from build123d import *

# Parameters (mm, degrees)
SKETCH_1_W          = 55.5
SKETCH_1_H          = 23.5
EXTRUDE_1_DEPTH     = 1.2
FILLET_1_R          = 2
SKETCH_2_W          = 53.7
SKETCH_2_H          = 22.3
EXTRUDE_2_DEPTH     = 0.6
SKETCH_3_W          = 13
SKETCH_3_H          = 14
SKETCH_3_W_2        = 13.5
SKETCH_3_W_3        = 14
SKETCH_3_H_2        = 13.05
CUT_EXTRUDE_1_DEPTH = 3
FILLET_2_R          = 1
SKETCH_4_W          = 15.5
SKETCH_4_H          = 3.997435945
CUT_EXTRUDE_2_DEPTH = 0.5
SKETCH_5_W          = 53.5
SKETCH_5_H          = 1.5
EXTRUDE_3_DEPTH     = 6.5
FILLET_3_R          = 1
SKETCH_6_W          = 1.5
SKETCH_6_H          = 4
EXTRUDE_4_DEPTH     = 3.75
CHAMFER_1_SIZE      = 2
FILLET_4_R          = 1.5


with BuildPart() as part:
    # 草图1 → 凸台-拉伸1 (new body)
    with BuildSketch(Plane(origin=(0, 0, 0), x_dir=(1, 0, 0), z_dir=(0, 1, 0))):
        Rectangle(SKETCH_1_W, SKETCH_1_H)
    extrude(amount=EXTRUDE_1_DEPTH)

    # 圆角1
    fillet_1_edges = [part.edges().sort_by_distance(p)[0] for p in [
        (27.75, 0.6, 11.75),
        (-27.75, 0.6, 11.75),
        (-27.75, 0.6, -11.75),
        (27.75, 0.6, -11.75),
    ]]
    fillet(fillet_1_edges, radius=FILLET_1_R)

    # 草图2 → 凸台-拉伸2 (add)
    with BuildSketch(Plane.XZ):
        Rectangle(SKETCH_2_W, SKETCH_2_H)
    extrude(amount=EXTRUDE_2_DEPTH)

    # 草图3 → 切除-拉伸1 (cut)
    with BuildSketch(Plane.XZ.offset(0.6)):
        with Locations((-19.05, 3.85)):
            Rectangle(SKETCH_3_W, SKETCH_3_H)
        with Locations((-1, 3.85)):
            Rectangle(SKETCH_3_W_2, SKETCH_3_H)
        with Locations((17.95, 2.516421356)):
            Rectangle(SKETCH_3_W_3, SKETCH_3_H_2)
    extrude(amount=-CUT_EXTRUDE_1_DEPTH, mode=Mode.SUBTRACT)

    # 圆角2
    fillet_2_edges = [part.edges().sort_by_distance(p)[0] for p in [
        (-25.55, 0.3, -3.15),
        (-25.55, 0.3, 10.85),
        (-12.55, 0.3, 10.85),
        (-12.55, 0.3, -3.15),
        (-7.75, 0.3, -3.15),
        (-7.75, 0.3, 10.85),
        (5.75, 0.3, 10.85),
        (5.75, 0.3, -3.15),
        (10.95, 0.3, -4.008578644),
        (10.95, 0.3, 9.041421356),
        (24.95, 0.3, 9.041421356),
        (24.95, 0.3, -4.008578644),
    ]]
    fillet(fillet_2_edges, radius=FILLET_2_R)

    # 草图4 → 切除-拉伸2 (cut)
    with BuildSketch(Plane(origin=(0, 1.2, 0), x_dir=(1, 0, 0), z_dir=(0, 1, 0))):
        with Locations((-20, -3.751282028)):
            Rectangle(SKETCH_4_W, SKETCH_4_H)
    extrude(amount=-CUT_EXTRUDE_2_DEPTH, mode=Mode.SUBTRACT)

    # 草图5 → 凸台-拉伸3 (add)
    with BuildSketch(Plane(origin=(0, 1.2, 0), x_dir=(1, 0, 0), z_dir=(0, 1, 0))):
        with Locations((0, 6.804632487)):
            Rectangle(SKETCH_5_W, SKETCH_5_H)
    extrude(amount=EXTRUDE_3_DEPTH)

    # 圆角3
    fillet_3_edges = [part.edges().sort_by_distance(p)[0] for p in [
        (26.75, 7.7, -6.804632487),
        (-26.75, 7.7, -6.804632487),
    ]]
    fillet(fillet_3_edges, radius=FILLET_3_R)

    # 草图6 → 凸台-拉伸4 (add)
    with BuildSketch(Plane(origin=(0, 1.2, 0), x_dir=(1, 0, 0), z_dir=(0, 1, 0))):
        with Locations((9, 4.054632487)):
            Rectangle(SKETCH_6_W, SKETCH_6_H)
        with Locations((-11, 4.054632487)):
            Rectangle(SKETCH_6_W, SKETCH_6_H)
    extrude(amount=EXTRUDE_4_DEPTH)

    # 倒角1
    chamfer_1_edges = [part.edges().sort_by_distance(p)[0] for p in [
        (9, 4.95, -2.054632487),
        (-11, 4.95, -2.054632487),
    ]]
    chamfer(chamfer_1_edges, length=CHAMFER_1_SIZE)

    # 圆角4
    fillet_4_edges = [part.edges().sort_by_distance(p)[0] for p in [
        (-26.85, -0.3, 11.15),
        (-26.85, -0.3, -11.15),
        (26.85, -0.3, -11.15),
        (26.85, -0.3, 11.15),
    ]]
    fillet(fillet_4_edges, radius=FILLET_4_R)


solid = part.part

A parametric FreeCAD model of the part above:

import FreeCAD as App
import Part
import Sketcher
from FreeCAD import Vector
Q = App.Units.Quantity


def edges_at(feature, points):
    """Names of the edges that pass closest to the given points."""
    edges = feature.Shape.Edges
    near = lambda p: min(range(len(edges)), key=lambda i: edges[i].distToShape(Part.Vertex(*p))[0])
    return sorted({f"Edge{near(p) + 1}" for p in points})

doc = App.newDocument("Part")
params = doc.addObject("Spreadsheet::Sheet", "Params")
for row, (alias, value) in enumerate([
    ("sketch1_width", "55.5 mm"),
    ("sketch1_height", "23.5 mm"),
    ("pad1_length", "1.2 mm"),
    ("fillet_radius", "2 mm"),
    ("sketch2_width", "53.7 mm"),
    ("sketch2_height", "22.3 mm"),
    ("pad2_length", "0.6 mm"),
    ("sketch3_width", "13 mm"),
    ("sketch3_width2", "14 mm"),
    ("sketch3_width3", "13.5 mm"),
    ("sketch3_height", "13.05 mm"),
    ("pocket1_length", "3 mm"),
    ("fillet2_radius", "1 mm"),
    ("sketch4_width", "15.5 mm"),
    ("pocket2_length", "0.5 mm"),
    ("sketch5_width", "53.5 mm"),
    ("sketch5_height", "1.5 mm"),
    ("pad3_length", "6.5 mm"),
    ("fillet3_radius", "1 mm"),
    ("sketch6_height", "4 mm"),
    ("sketch6_width", "1.5 mm"),
    ("pad4_length", "3.75 mm"),
    ("chamfer_size", "2 mm"),
    ("fillet4_radius", "1.5 mm"),
], start=1):
    params.set(f"A{row}", alias)
    params.set(f"B{row}", "=" + value)
    params.setAlias(f"B{row}", alias)

body = doc.addObject("PartDesign::Body", "Body")

sketch1 = body.newObject("Sketcher::SketchObject", "Sketch")
sketch1.AttachmentSupport = (doc.getObject("XZ_Plane"), [""])
sketch1.MapMode = "FlatFace"
sketch1.addGeometry(Part.LineSegment(Vector(-28, -12, 0), Vector(-28, 12, 0)), False)
sketch1.addGeometry(Part.LineSegment(Vector(-28, 12, 0), Vector(28, 12, 0)), False)
sketch1.addGeometry(Part.LineSegment(Vector(28, 12, 0), Vector(28, -12, 0)), False)
sketch1.addGeometry(Part.LineSegment(Vector(28, -12, 0), Vector(-28, -12, 0)), False)
sketch1.addConstraint(Sketcher.Constraint("Coincident", 0, 2, 1, 1))
sketch1.addConstraint(Sketcher.Constraint("Coincident", 1, 2, 2, 1))
sketch1.addConstraint(Sketcher.Constraint("Coincident", 2, 2, 3, 1))
sketch1.addConstraint(Sketcher.Constraint("Coincident", 3, 2, 0, 1))
sketch1.addConstraint(Sketcher.Constraint("Vertical", 0))
sketch1.addConstraint(Sketcher.Constraint("Horizontal", 1))
sketch1.addConstraint(Sketcher.Constraint("Vertical", 2))
sketch1.addConstraint(Sketcher.Constraint("Horizontal", 3))
sketch1.addConstraint(Sketcher.Constraint("Symmetric", 0, 2, 2, 2, -1, 1))
sketch1.addConstraint(Sketcher.Constraint("DistanceX", 1, 1, 1, 2, Q("55.5 mm")))
sketch1.addConstraint(Sketcher.Constraint("DistanceY", 0, 1, 0, 2, Q("23.5 mm")))
sketch1.setExpression("Constraints[9]", "Params.sketch1_width")
sketch1.setExpression("Constraints[10]", "Params.sketch1_height")
pad1 = body.newObject("PartDesign::Pad", "Pad")
pad1.Profile = sketch1
pad1.setExpression("Length", "Params.pad1_length")
pad1.Reversed = True
doc.recompute()

fillet = body.newObject("PartDesign::Fillet", "Fillet")
fillet.Base = (pad1, edges_at(pad1, [
    (27.75, 0.6, 11.75),
    (-27.75, 0.6, 11.75),
    (-27.75, 0.6, -11.75),
    (27.75, 0.6, -11.75),
]))
fillet.setExpression("Radius", "Params.fillet_radius")

sketch2 = body.newObject("Sketcher::SketchObject", "Sketch001")
sketch2.AttachmentSupport = (doc.getObject("XZ_Plane"), [""])
sketch2.MapMode = "FlatFace"
sketch2.addGeometry(Part.LineSegment(Vector(-27, 11, 0), Vector(-27, -11, 0)), False)
sketch2.addGeometry(Part.LineSegment(Vector(-27, -11, 0), Vector(27, -11, 0)), False)
sketch2.addGeometry(Part.LineSegment(Vector(27, -11, 0), Vector(27, 11, 0)), False)
sketch2.addGeometry(Part.LineSegment(Vector(27, 11, 0), Vector(-27, 11, 0)), False)
sketch2.addConstraint(Sketcher.Constraint("Coincident", 0, 2, 1, 1))
sketch2.addConstraint(Sketcher.Constraint("Coincident", 1, 2, 2, 1))
sketch2.addConstraint(Sketcher.Constraint("Coincident", 2, 2, 3, 1))
sketch2.addConstraint(Sketcher.Constraint("Coincident", 3, 2, 0, 1))
sketch2.addConstraint(Sketcher.Constraint("Vertical", 0))
sketch2.addConstraint(Sketcher.Constraint("Horizontal", 1))
sketch2.addConstraint(Sketcher.Constraint("Vertical", 2))
sketch2.addConstraint(Sketcher.Constraint("Horizontal", 3))
sketch2.addConstraint(Sketcher.Constraint("Symmetric", 0, 2, 2, 2, -1, 1))
sketch2.addConstraint(Sketcher.Constraint("DistanceX", 1, 1, 1, 2, Q("53.7 mm")))
sketch2.addConstraint(Sketcher.Constraint("DistanceY", 0, 2, 0, 1, Q("22.3 mm")))
sketch2.setExpression("Constraints[9]", "Params.sketch2_width")
sketch2.setExpression("Constraints[10]", "Params.sketch2_height")
pad2 = body.newObject("PartDesign::Pad", "Pad001")
pad2.Profile = sketch2
pad2.setExpression("Length", "Params.pad2_length")

sketch3 = body.newObject("Sketcher::SketchObject", "Sketch002")
sketch3.AttachmentSupport = (doc.getObject("XZ_Plane"), [""])
sketch3.MapMode = "FlatFace"
sketch3.AttachmentOffset = App.Placement(Vector(0, 0, 0.6), App.Rotation())
sketch3.addGeometry(Part.LineSegment(Vector(-26, 11, 0), Vector(-26, -3, 0)), False)
sketch3.addGeometry(Part.LineSegment(Vector(-26, -3, 0), Vector(-13, -3, 0)), False)
sketch3.addGeometry(Part.LineSegment(Vector(-13, -3, 0), Vector(-13, 11, 0)), False)
sketch3.addGeometry(Part.LineSegment(Vector(-13, 11, 0), Vector(-26, 11, 0)), False)
sketch3.addGeometry(Part.LineSegment(Vector(-8, 11, 0), Vector(-8, -3, 0)), False)
sketch3.addGeometry(Part.LineSegment(Vector(-8, -3, 0), Vector(6, -3, 0)), False)
sketch3.addGeometry(Part.LineSegment(Vector(6, -3, 0), Vector(6, 11, 0)), False)
sketch3.addGeometry(Part.LineSegment(Vector(6, 11, 0), Vector(-8, 11, 0)), False)
sketch3.addGeometry(Part.LineSegment(Vector(11, 9, 0), Vector(11, -4, 0)), False)
sketch3.addGeometry(Part.LineSegment(Vector(11, -4, 0), Vector(25, -4, 0)), False)
sketch3.addGeometry(Part.LineSegment(Vector(25, -4, 0), Vector(25, 9, 0)), False)
sketch3.addGeometry(Part.LineSegment(Vector(25, 9, 0), Vector(11, 9, 0)), False)
sketch3.addConstraint(Sketcher.Constraint("Coincident", 0, 2, 1, 1))
sketch3.addConstraint(Sketcher.Constraint("Coincident", 1, 2, 2, 1))
sketch3.addConstraint(Sketcher.Constraint("Coincident", 2, 2, 3, 1))
sketch3.addConstraint(Sketcher.Constraint("Coincident", 3, 2, 0, 1))
sketch3.addConstraint(Sketcher.Constraint("Coincident", 4, 2, 5, 1))
sketch3.addConstraint(Sketcher.Constraint("Coincident", 5, 2, 6, 1))
sketch3.addConstraint(Sketcher.Constraint("Coincident", 6, 2, 7, 1))
sketch3.addConstraint(Sketcher.Constraint("Coincident", 7, 2, 4, 1))
sketch3.addConstraint(Sketcher.Constraint("Coincident", 8, 2, 9, 1))
sketch3.addConstraint(Sketcher.Constraint("Coincident", 9, 2, 10, 1))
sketch3.addConstraint(Sketcher.Constraint("Coincident", 10, 2, 11, 1))
sketch3.addConstraint(Sketcher.Constraint("Coincident", 11, 2, 8, 1))
sketch3.addConstraint(Sketcher.Constraint("Vertical", 0))
sketch3.addConstraint(Sketcher.Constraint("Horizontal", 1))
sketch3.addConstraint(Sketcher.Constraint("Vertical", 2))
sketch3.addConstraint(Sketcher.Constraint("Horizontal", 3))
sketch3.addConstraint(Sketcher.Constraint("Vertical", 4))
sketch3.addConstraint(Sketcher.Constraint("Horizontal", 5))
sketch3.addConstraint(Sketcher.Constraint("Vertical", 6))
sketch3.addConstraint(Sketcher.Constraint("Horizontal", 7))
sketch3.addConstraint(Sketcher.Constraint("Vertical", 8))
sketch3.addConstraint(Sketcher.Constraint("Horizontal", 9))
sketch3.addConstraint(Sketcher.Constraint("Vertical", 10))
sketch3.addConstraint(Sketcher.Constraint("Horizontal", 11))
sketch3.addConstraint(Sketcher.Constraint("Horizontal", 1, 2, 4, 2))
sketch3.addConstraint(Sketcher.Constraint("Horizontal", 3, 2, 6, 2))
sketch3.addConstraint(Sketcher.Constraint("Equal", 11, 0))
sketch3.addConstraint(Sketcher.Constraint("DistanceX", 1, 1, 1, 2, Q("13 mm")))
sketch3.addConstraint(Sketcher.Constraint("DistanceX", 9, 1, 9, 2, Q("14 mm")))
sketch3.addConstraint(Sketcher.Constraint("DistanceX", 5, 1, 5, 2, Q("13.5 mm")))
sketch3.addConstraint(Sketcher.Constraint("DistanceY", 8, 2, 8, 1, Q("13.05 mm")))
sketch3.addConstraint(Sketcher.Constraint("DistanceX", 1, 2, 4, 2, Q("4.8 mm")))
sketch3.addConstraint(Sketcher.Constraint("DistanceX", 5, 2, 8, 2, Q("5.2 mm")))
sketch3.addConstraint(Sketcher.Constraint("DistanceX", 0, 2, -1, 1, Q("25.55 mm")))
sketch3.addConstraint(Sketcher.Constraint("DistanceY", 0, 2, -1, 1, Q("3.15 mm")))
sketch3.addConstraint(Sketcher.Constraint("DistanceY", 8, 2, -1, 1, Q("4.008579 mm")))
sketch3.setExpression("Constraints[27]", "Params.sketch3_width")
sketch3.setExpression("Constraints[28]", "Params.sketch3_width2")
sketch3.setExpression("Constraints[29]", "Params.sketch3_width3")
sketch3.setExpression("Constraints[30]", "Params.sketch3_height")
pocket1 = body.newObject("PartDesign::Pocket", "Pocket")
pocket1.Profile = sketch3
pocket1.setExpression("Length", "Params.pocket1_length")
doc.recompute()

fillet2 = body.newObject("PartDesign::Fillet", "Fillet001")
fillet2.Base = (pocket1, edges_at(pocket1, [
    (-25.55, 0.3, -3.15),
    (-25.55, 0.3, 10.85),
    (-12.55, 0.3, 10.85),
    (-12.55, 0.3, -3.15),
    (-7.75, 0.3, -3.15),
    (-7.75, 0.3, 10.85),
    (5.75, 0.3, 10.85),
    (5.75, 0.3, -3.15),
    (10.95, 0.3, -4.009),
    (10.95, 0.3, 9.041),
    (24.95, 0.3, 9.041),
    (24.95, 0.3, -4.009),
]))
fillet2.setExpression("Radius", "Params.fillet2_radius")

sketch4 = body.newObject("Sketcher::SketchObject", "Sketch003")
sketch4.AttachmentSupport = (doc.getObject("XZ_Plane"), [""])
sketch4.MapMode = "FlatFace"
sketch4.AttachmentOffset = App.Placement(Vector(0, 0, -1.2), App.Rotation())
sketch4.addGeometry(Part.LineSegment(Vector(-27.8, 1.8, 0), Vector(-27.8, 5.8, 0)), False)
sketch4.addGeometry(Part.LineSegment(Vector(-27.8, 5.8, 0), Vector(-12.2, 5.8, 0)), False)
sketch4.addGeometry(Part.LineSegment(Vector(-12.2, 5.8, 0), Vector(-12.2, 1.8, 0)), False)
sketch4.addGeometry(Part.LineSegment(Vector(-12.2, 1.8, 0), Vector(-27.8, 1.8, 0)), False)
sketch4.addConstraint(Sketcher.Constraint("Coincident", 0, 2, 1, 1))
sketch4.addConstraint(Sketcher.Constraint("Coincident", 1, 2, 2, 1))
sketch4.addConstraint(Sketcher.Constraint("Coincident", 2, 2, 3, 1))
sketch4.addConstraint(Sketcher.Constraint("Coincident", 3, 2, 0, 1))
sketch4.addConstraint(Sketcher.Constraint("Vertical", 0))
sketch4.addConstraint(Sketcher.Constraint("Horizontal", 1))
sketch4.addConstraint(Sketcher.Constraint("Vertical", 2))
sketch4.addConstraint(Sketcher.Constraint("Horizontal", 3))
sketch4.addConstraint(Sketcher.Constraint("DistanceX", 1, 1, 1, 2, Q("15.5 mm")))
sketch4.addConstraint(Sketcher.Constraint("DistanceX", 0, 2, -1, 1, Q("27.75 mm")))
sketch4.addConstraint(Sketcher.Constraint("DistanceY", -1, 1, 0, 2, Q("5.75 mm")))
sketch4.addConstraint(Sketcher.Constraint("DistanceY", 0, 1, 0, 2, Q("3.997436 mm")))
sketch4.setExpression("Constraints[8]", "Params.sketch4_width")
pocket2 = body.newObject("PartDesign::Pocket", "Pocket001")
pocket2.Profile = sketch4
pocket2.setExpression("Length", "Params.pocket2_length")
pocket2.Reversed = True

sketch5 = body.newObject("Sketcher::SketchObject", "Sketch004")
sketch5.AttachmentSupport = (doc.getObject("XZ_Plane"), [""])
sketch5.MapMode = "FlatFace"
sketch5.AttachmentOffset = App.Placement(Vector(0, 0, -1.2), App.Rotation())
sketch5.addGeometry(Part.LineSegment(Vector(-26.8, -7.6, 0), Vector(-26.8, -6.1, 0)), False)
sketch5.addGeometry(Part.LineSegment(Vector(-26.8, -6.1, 0), Vector(26.8, -6.1, 0)), False)
sketch5.addGeometry(Part.LineSegment(Vector(26.8, -6.1, 0), Vector(26.8, -7.6, 0)), False)
sketch5.addGeometry(Part.LineSegment(Vector(26.8, -7.6, 0), Vector(-26.8, -7.6, 0)), False)
sketch5.addConstraint(Sketcher.Constraint("Coincident", 0, 2, 1, 1))
sketch5.addConstraint(Sketcher.Constraint("Coincident", 1, 2, 2, 1))
sketch5.addConstraint(Sketcher.Constraint("Coincident", 2, 2, 3, 1))
sketch5.addConstraint(Sketcher.Constraint("Coincident", 3, 2, 0, 1))
sketch5.addConstraint(Sketcher.Constraint("Vertical", 0))
sketch5.addConstraint(Sketcher.Constraint("Horizontal", 1))
sketch5.addConstraint(Sketcher.Constraint("Vertical", 2))
sketch5.addConstraint(Sketcher.Constraint("Horizontal", 3))
sketch5.addConstraint(Sketcher.Constraint("DistanceX", 1, 1, 1, 2, Q("53.5 mm")))
sketch5.addConstraint(Sketcher.Constraint("DistanceY", 0, 1, 0, 2, Q("1.5 mm")))
sketch5.addConstraint(Sketcher.Constraint("DistanceX", 0, 2, -1, 1, Q("26.75 mm")))
sketch5.addConstraint(Sketcher.Constraint("DistanceY", 0, 2, -1, 1, Q("6.054632 mm")))
sketch5.setExpression("Constraints[8]", "Params.sketch5_width")
sketch5.setExpression("Constraints[9]", "Params.sketch5_height")
pad3 = body.newObject("PartDesign::Pad", "Pad002")
pad3.Profile = sketch5
pad3.setExpression("Length", "Params.pad3_length")
pad3.Reversed = True
doc.recompute()

fillet3 = body.newObject("PartDesign::Fillet", "Fillet002")
fillet3.Base = (pad3, edges_at(pad3, [(26.75, 7.7, -6.805), (-26.75, 7.7, -6.805)]))
fillet3.setExpression("Radius", "Params.fillet3_radius")

sketch6 = body.newObject("Sketcher::SketchObject", "Sketch005")
sketch6.AttachmentSupport = (doc.getObject("XZ_Plane"), [""])
sketch6.MapMode = "FlatFace"
sketch6.AttachmentOffset = App.Placement(Vector(0, 0, -1.2), App.Rotation())
sketch6.addGeometry(Part.LineSegment(Vector(8.2, -6.1, 0), Vector(8.2, -2.1, 0)), False)
sketch6.addGeometry(Part.LineSegment(Vector(8.2, -2.1, 0), Vector(9.8, -2.1, 0)), False)
sketch6.addGeometry(Part.LineSegment(Vector(9.8, -2.1, 0), Vector(9.8, -6.1, 0)), False)
sketch6.addGeometry(Part.LineSegment(Vector(9.8, -6.1, 0), Vector(8.2, -6.1, 0)), False)
sketch6.addGeometry(Part.LineSegment(Vector(-11.8, -6.1, 0), Vector(-11.8, -2.1, 0)), False)
sketch6.addGeometry(Part.LineSegment(Vector(-11.8, -2.1, 0), Vector(-10.2, -2.1, 0)), False)
sketch6.addGeometry(Part.LineSegment(Vector(-10.2, -2.1, 0), Vector(-10.2, -6.1, 0)), False)
sketch6.addGeometry(Part.LineSegment(Vector(-10.2, -6.1, 0), Vector(-11.8, -6.1, 0)), False)
sketch6.addConstraint(Sketcher.Constraint("Coincident", 0, 2, 1, 1))
sketch6.addConstraint(Sketcher.Constraint("Coincident", 1, 2, 2, 1))
sketch6.addConstraint(Sketcher.Constraint("Coincident", 2, 2, 3, 1))
sketch6.addConstraint(Sketcher.Constraint("Coincident", 3, 2, 0, 1))
sketch6.addConstraint(Sketcher.Constraint("Coincident", 4, 2, 5, 1))
sketch6.addConstraint(Sketcher.Constraint("Coincident", 5, 2, 6, 1))
sketch6.addConstraint(Sketcher.Constraint("Coincident", 6, 2, 7, 1))
sketch6.addConstraint(Sketcher.Constraint("Coincident", 7, 2, 4, 1))
sketch6.addConstraint(Sketcher.Constraint("Vertical", 0))
sketch6.addConstraint(Sketcher.Constraint("Horizontal", 1))
sketch6.addConstraint(Sketcher.Constraint("Vertical", 2))
sketch6.addConstraint(Sketcher.Constraint("Horizontal", 3))
sketch6.addConstraint(Sketcher.Constraint("Vertical", 4))
sketch6.addConstraint(Sketcher.Constraint("Horizontal", 5))
sketch6.addConstraint(Sketcher.Constraint("Vertical", 6))
sketch6.addConstraint(Sketcher.Constraint("Horizontal", 7))
sketch6.addConstraint(Sketcher.Constraint("Horizontal", 1, 2, 4, 2))
sketch6.addConstraint(Sketcher.Constraint("Horizontal", 3, 2, 6, 2))
sketch6.addConstraint(Sketcher.Constraint("Equal", 3, 5))
sketch6.addConstraint(Sketcher.Constraint("DistanceY", 0, 1, 0, 2, Q("4 mm")))
sketch6.addConstraint(Sketcher.Constraint("DistanceX", 1, 1, 1, 2, Q("1.5 mm")))
sketch6.addConstraint(Sketcher.Constraint("DistanceX", 4, 2, 0, 2, Q("20 mm")))
sketch6.addConstraint(Sketcher.Constraint("DistanceX", -1, 1, 0, 2, Q("8.25 mm")))
sketch6.addConstraint(Sketcher.Constraint("DistanceY", 0, 2, -1, 1, Q("2.054632 mm")))
sketch6.setExpression("Constraints[19]", "Params.sketch6_height")
sketch6.setExpression("Constraints[20]", "Params.sketch6_width")
pad4 = body.newObject("PartDesign::Pad", "Pad003")
pad4.Profile = sketch6
pad4.setExpression("Length", "Params.pad4_length")
pad4.Reversed = True
doc.recompute()

chamfer = body.newObject("PartDesign::Chamfer", "Chamfer")
chamfer.Base = (pad4, edges_at(pad4, [(9, 4.95, -2.055), (-11, 4.95, -2.055)]))
chamfer.setExpression("Size", "Params.chamfer_size")
doc.recompute()

fillet4 = body.newObject("PartDesign::Fillet", "Fillet003")
fillet4.Base = (chamfer, edges_at(chamfer, [
    (-26.85, -0.3, 11.15),
    (-26.85, -0.3, -11.15),
    (26.85, -0.3, -11.15),
    (26.85, -0.3, 11.15),
]))
fillet4.setExpression("Radius", "Params.fillet4_radius")

doc.recompute()
